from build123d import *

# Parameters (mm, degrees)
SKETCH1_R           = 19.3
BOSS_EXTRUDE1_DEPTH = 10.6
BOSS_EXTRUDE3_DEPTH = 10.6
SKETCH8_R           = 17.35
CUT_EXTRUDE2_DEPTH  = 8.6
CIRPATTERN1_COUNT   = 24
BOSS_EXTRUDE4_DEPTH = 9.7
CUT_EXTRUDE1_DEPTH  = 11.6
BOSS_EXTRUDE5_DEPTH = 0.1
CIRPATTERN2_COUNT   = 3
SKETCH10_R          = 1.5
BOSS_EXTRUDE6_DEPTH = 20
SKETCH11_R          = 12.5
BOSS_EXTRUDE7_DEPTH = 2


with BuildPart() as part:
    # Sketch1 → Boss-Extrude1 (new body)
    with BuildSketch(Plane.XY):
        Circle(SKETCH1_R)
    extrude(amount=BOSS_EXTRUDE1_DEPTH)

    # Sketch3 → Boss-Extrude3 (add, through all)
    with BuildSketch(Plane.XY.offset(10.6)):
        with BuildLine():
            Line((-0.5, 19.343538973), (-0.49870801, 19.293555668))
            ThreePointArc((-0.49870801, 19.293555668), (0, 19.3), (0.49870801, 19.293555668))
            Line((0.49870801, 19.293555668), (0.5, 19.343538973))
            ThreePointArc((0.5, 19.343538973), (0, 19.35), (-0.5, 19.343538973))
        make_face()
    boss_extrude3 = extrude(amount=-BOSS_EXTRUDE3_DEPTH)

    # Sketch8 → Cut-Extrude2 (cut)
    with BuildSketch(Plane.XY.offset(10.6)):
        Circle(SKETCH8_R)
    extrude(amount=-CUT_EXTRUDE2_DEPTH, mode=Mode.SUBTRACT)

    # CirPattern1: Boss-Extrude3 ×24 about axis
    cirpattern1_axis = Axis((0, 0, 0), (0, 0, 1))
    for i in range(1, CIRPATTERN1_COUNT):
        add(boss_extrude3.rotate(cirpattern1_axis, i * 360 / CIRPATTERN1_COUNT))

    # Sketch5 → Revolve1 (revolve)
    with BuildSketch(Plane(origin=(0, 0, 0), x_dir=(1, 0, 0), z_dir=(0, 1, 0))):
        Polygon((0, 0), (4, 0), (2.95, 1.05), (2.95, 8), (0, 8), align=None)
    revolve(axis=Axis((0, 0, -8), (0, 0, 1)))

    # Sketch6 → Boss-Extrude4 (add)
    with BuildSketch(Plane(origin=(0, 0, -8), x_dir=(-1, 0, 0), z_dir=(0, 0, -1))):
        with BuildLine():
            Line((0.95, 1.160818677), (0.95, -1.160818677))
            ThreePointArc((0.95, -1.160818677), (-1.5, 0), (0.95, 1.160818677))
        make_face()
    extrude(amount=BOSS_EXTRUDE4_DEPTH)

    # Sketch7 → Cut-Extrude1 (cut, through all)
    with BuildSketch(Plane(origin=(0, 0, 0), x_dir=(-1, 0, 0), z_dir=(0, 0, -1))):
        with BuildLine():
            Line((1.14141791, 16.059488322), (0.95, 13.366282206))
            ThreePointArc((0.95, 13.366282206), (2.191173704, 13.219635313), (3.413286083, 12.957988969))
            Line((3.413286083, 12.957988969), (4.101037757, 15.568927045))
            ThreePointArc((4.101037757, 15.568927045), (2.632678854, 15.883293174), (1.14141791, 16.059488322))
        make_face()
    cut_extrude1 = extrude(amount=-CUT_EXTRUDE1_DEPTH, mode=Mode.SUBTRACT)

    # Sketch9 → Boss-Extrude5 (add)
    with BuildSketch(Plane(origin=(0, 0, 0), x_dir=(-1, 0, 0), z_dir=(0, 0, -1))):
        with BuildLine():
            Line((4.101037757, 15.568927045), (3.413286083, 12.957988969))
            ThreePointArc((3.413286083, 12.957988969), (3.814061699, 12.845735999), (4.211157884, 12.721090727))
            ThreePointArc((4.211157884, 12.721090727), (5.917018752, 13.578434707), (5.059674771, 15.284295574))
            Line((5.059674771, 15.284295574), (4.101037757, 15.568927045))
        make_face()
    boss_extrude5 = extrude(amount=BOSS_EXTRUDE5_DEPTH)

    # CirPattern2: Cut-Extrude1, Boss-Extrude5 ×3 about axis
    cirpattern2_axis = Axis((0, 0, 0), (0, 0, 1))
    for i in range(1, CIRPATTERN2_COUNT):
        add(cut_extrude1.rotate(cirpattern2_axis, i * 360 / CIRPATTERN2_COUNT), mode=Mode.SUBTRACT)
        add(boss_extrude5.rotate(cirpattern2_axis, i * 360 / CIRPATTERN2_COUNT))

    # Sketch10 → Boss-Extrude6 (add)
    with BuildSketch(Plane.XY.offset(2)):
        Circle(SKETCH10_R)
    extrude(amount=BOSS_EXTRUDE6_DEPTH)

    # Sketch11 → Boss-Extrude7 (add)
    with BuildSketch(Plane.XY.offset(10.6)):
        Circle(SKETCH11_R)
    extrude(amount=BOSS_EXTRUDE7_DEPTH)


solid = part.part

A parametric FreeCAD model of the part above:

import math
import FreeCAD as App
import Part
import Sketcher
from FreeCAD import Vector
Q = App.Units.Quantity

doc = App.newDocument("Part")
body = doc.addObject("PartDesign::Body", "Body")

# Sketch on XY plane
sketch1 = body.newObject("Sketcher::SketchObject", "Sketch")
sketch1.AttachmentSupport = (doc.getObject("XY_Plane"), [""])
sketch1.MapMode = "FlatFace"
sketch1.addGeometry(Part.Circle(Vector(0, 0, 0), Vector(0, 0, 1), 19.3), False)
sketch1.addConstraint(Sketcher.Constraint("Coincident", 0, 3, -1, 1))
sketch1.addConstraint(Sketcher.Constraint("Diameter", 0, 38.6))
pad1 = body.newObject("PartDesign::Pad", "Pad")
pad1.Profile = sketch1
pad1.Length = 10.6

# Sketch on XY plane
sketch2 = body.newObject("Sketcher::SketchObject", "Sketch001")
sketch2.AttachmentSupport = (doc.getObject("XY_Plane"), [""])
sketch2.MapMode = "FlatFace"
sketch2.AttachmentOffset = App.Placement(Vector(0, 0, 10.6), App.Rotation())
sketch2.addGeometry(Part.LineSegment(Vector(-0.5, 19.343539, 0), Vector(-0.498708, 19.293556, 0)), False)
sketch2.addGeometry(Part.ArcOfCircle(Part.Circle(Vector(0, 0.000001, 0), Vector(0, 0, 1), 19.299999), math.radians(88.519324), math.radians(91.480676)), False)
sketch2.addGeometry(Part.LineSegment(Vector(0.498708, 19.293556, 0), Vector(0.5, 19.343539, 0)), False)
sketch2.addGeometry(Part.ArcOfCircle(Part.Circle(Vector(0, 0, 0), Vector(0, 0, 1), 19.35), math.radians(88.519324), math.radians(91.480676)), False)
sketch2.addConstraint(Sketcher.Constraint("Coincident", 0, 2, 1, 2))
sketch2.addConstraint(Sketcher.Constraint("Coincident", 1, 1, 2, 1))
sketch2.addConstraint(Sketcher.Constraint("Coincident", 2, 2, 3, 1))
sketch2.addConstraint(Sketcher.Constraint("Coincident", 3, 2, 0, 1))
sketch2.addConstraint(Sketcher.Constraint("Coincident", 1, 3, -1, 1))
sketch2.addConstraint(Sketcher.Constraint("Coincident", 3, 3, -1, 1))
sketch2.addConstraint(Sketcher.Constraint("Horizontal", 0, 2, 1, 1))
sketch2.addConstraint(Sketcher.Constraint("Horizontal", 2, 2, 3, 2))
sketch2.addConstraint(Sketcher.Constraint("Radius", 1, 19.299999))
sketch2.addConstraint(Sketcher.Constraint("Radius", 3, 19.35))
sketch2.addConstraint(Sketcher.Constraint("DistanceX", 3, 2, 2, 2, 1.0))
sketch2.addConstraint(Sketcher.Constraint("DistanceX", 0, 2, -1, 1, 0.498708))
pad2 = body.newObject("PartDesign::Pad", "Pad001")
pad2.Profile = sketch2
pad2.Length = 10.6
pad2.Reversed = True

# Sketch on XY plane
sketch3 = body.newObject("Sketcher::SketchObject", "Sketch002")
sketch3.AttachmentSupport = (doc.getObject("XY_Plane"), [""])
sketch3.MapMode = "FlatFace"
sketch3.AttachmentOffset = App.Placement(Vector(0, 0, 10.6), App.Rotation())
sketch3.addGeometry(Part.Circle(Vector(0, 0, 0), Vector(0, 0, 1), 17.35), False)
sketch3.addConstraint(Sketcher.Constraint("Coincident", 0, 3, -1, 1))
sketch3.addConstraint(Sketcher.Constraint("Diameter", 0, 34.7))
pocket1 = body.newObject("PartDesign::Pocket", "Pocket")
pocket1.Profile = sketch3
pocket1.Length = 8.6
doc.recompute()

polarpattern = body.newObject("PartDesign::PolarPattern", "PolarPattern")
polarpattern.Originals = [pad2]
polarpattern.Axis = (doc.getObject("Z_Axis"), [""])
polarpattern.Angle = 360
polarpattern.Occurrences = 24
body.Tip = polarpattern

# Sketch on XZ plane
sketch4 = body.newObject("Sketcher::SketchObject", "Sketch003")
sketch4.AttachmentSupport = (doc.getObject("XZ_Plane"), [""])
sketch4.MapMode = "FlatFace"
sketch4.addGeometry(Part.LineSegment(Vector(0, 0, 0), Vector(4, 0, 0)), False)
sketch4.addGeometry(Part.LineSegment(Vector(4, 0, 0), Vector(2.95, -1.05, 0)), False)
sketch4.addGeometry(Part.LineSegment(Vector(2.95, -1.05, 0), Vector(2.95, -8, 0)), False)
sketch4.addGeometry(Part.LineSegment(Vector(2.95, -8, 0), Vector(0, -8, 0)), False)
sketch4.addGeometry(Part.LineSegment(Vector(0, -8, 0), Vector(0, 0, 0)), False)
sketch4.addConstraint(Sketcher.Constraint("Coincident", 0, 2, 1, 1))
sketch4.addConstraint(Sketcher.Constraint("Coincident", 1, 2, 2, 1))
sketch4.addConstraint(Sketcher.Constraint("Coincident", 2, 2, 3, 1))
sketch4.addConstraint(Sketcher.Constraint("Coincident", 3, 2, 4, 1))
sketch4.addConstraint(Sketcher.Constraint("Coincident", 4, 2, 0, 1))
sketch4.addConstraint(Sketcher.Constraint("Horizontal", 0))
sketch4.addConstraint(Sketcher.Constraint("Vertical", 2))
sketch4.addConstraint(Sketcher.Constraint("Horizontal", 3))
sketch4.addConstraint(Sketcher.Constraint("Vertical", 4))
sketch4.addConstraint(Sketcher.Constraint("Coincident", 4, 2, -1, 1))
sketch4.addConstraint(Sketcher.Constraint("DistanceX", 0, 1, 0, 2, 4.0))
sketch4.addConstraint(Sketcher.Constraint("DistanceY", 4, 1, 4, 2, 8.0))
sketch4.addConstraint(Sketcher.Constraint("Angle", 1, Q("-135 deg")))
sketch4.addConstraint(Sketcher.Constraint("DistanceX", 3, 2, 3, 1, 2.95))
revolution = body.newObject("PartDesign::Revolution", "Revolution")
revolution.Profile = sketch4
revolution.ReferenceAxis = (sketch4, ["V_Axis"])
revolution.Angle = 360

# Sketch on XY plane
sketch5 = body.newObject("Sketcher::SketchObject", "Sketch004")
sketch5.AttachmentSupport = (doc.getObject("XY_Plane"), [""])
sketch5.MapMode = "FlatFace"
sketch5.AttachmentOffset = App.Placement(Vector(0, 0, -8), App.Rotation())
sketch5.addGeometry(Part.LineSegment(Vector(-0.95, -1.160819, 0), Vector(-0.95, 1.160819, 0)), False)
sketch5.addGeometry(Part.ArcOfCircle(Part.Circle(Vector(0, 0, 0), Vector(0, 0, 1), 1.5), math.radians(-129.29648), math.radians(129.29648)), False)
sketch5.addConstraint(Sketcher.Constraint("Coincident", 0, 1, 1, 1))
sketch5.addConstraint(Sketcher.Constraint("Coincident", 1, 2, 0, 2))
sketch5.addConstraint(Sketcher.Constraint("Vertical", 0))
sketch5.addConstraint(Sketcher.Constraint("Coincident", 1, 3, -1, 1))
sketch5.addConstraint(Sketcher.Constraint("Radius", 1, 1.5))
sketch5.addConstraint(Sketcher.Constraint("DistanceX", 0, 1, -1, 1, 0.95))
pad3 = body.newObject("PartDesign::Pad", "Pad002")
pad3.Profile = sketch5
pad3.Length = 9.7
pad3.Reversed = True

# Sketch on XY plane
sketch6 = body.newObject("Sketcher::SketchObject", "Sketch005")
sketch6.AttachmentSupport = (doc.getObject("XY_Plane"), [""])
sketch6.MapMode = "FlatFace"
sketch6.addGeometry(Part.LineSegment(Vector(-1.141418, 16.059488, 0), Vector(-0.95, 13.366282, 0)), False)
sketch6.addGeometry(Part.ArcOfCircle(Part.Circle(Vector(0, 0, 0), Vector(0, 0, 1), 13.4), math.radians(94.065425), math.radians(104.757163)), False)
sketch6.addGeometry(Part.LineSegment(Vector(-3.413286, 12.957989, 0), Vector(-4.101038, 15.568927, 0)), False)
sketch6.addGeometry(Part.ArcOfCircle(Part.Circle(Vector(0, 0, 0), Vector(0, 0, 1), 16.1), math.radians(94.065425), math.radians(104.757163)), False)
sketch6.addConstraint(Sketcher.Constraint("Coincident", 0, 2, 1, 1))
sketch6.addConstraint(Sketcher.Constraint("Coincident", 1, 2, 2, 1))
sketch6.addConstraint(Sketcher.Constraint("Coincident", 2, 2, 3, 2))
sketch6.addConstraint(Sketcher.Constraint("Coincident", 3, 1, 0, 1))
sketch6.addConstraint(Sketcher.Constraint("Coincident", 1, 3, -1, 1))
sketch6.addConstraint(Sketcher.Constraint("Coincident", 3, 3, -1, 1))
sketch6.addConstraint(Sketcher.Constraint("Radius", 1, 13.4))
sketch6.addConstraint(Sketcher.Constraint("Radius", 3, 16.1))
sketch6.addConstraint(Sketcher.Constraint("DistanceX", 0, 2, -1, 1, 0.95))
sketch6.addConstraint(Sketcher.Constraint("DistanceY", 1, 2, 3, 1, 3.101499))
sketch6.addConstraint(Sketcher.Constraint("DistanceY", -1, 1, 1, 2, 12.957989))
sketch6.addConstraint(Sketcher.Constraint("DistanceX", 2, 2, 1, 2, 0.687752))
pocket2 = body.newObject("PartDesign::Pocket", "Pocket001")
pocket2.Profile = sketch6
pocket2.Type = "ThroughAll"
pocket2.Reversed = True

# Sketch on XY plane
sketch7 = body.newObject("Sketcher::SketchObject", "Sketch006")
sketch7.AttachmentSupport = (doc.getObject("XY_Plane"), [""])
sketch7.MapMode = "FlatFace"
sketch7.addGeometry(Part.LineSegment(Vector(-4.101038, 15.568927, 0), Vector(-3.413286, 12.957989, 0)), False)
sketch7.addGeometry(Part.ArcOfCircle(Part.Circle(Vector(0, -0.000001, 0), Vector(0, 0, 1), 13.400001), math.radians(104.757163), math.radians(108.316479)), False)
sketch7.addGeometry(Part.ArcOfCircle(Part.Circle(Vector(-4.635416, 14.002693, 0), Vector(0, 0, 1), 1.35), math.radians(108.316479), math.radians(288.316479)), False)
sketch7.addGeometry(Part.LineSegment(Vector(-5.059675, 15.284296, 0), Vector(-4.101038, 15.568927, 0)), False)
sketch7.addConstraint(Sketcher.Constraint("Coincident", 0, 2, 1, 1))
sketch7.addConstraint(Sketcher.Constraint("Tangent", 1, 2, 2, 2))
sketch7.addConstraint(Sketcher.Constraint("Coincident", 2, 1, 3, 1))
sketch7.addConstraint(Sketcher.Constraint("Coincident", 3, 2, 0, 1))
sketch7.addConstraint(Sketcher.Constraint("Coincident", 1, 3, -1, 1))
sketch7.addConstraint(Sketcher.Constraint("Radius", 1, 13.400001))
sketch7.addConstraint(Sketcher.Constraint("Radius", 2, 1.35))
sketch7.addConstraint(Sketcher.Constraint("Distance", 3, 1.0))
sketch7.addConstraint(Sketcher.Constraint("Distance", 0, 2.7))
sketch7.addConstraint(Sketcher.Constraint("DistanceY", 1, 2, 0, 2, 0.236898))
sketch7.addConstraint(Sketcher.Constraint("DistanceY", -1, 1, 0, 2, 12.957989))
sketch7.addConstraint(Sketcher.Constraint("DistanceX", 2, 1, 2, 3, 0.424258))
pad4 = body.newObject("PartDesign::Pad", "Pad003")
pad4.Profile = sketch7
pad4.Length = 0.1
pad4.Reversed = True
doc.recompute()

polarpattern2 = body.newObject("PartDesign::PolarPattern", "PolarPattern001")
polarpattern2.Originals = [pocket2, pad4]
polarpattern2.Axis = (doc.getObject("Z_Axis"), [""])
polarpattern2.Angle = 360
polarpattern2.Occurrences = 3
body.Tip = polarpattern2

# Sketch on XY plane
sketch8 = body.newObject("Sketcher::SketchObject", "Sketch007")
sketch8.AttachmentSupport = (doc.getObject("XY_Plane"), [""])
sketch8.MapMode = "FlatFace"
sketch8.AttachmentOffset = App.Placement(Vector(0, 0, 2), App.Rotation())
sketch8.addGeometry(Part.Circle(Vector(0, 0, 0), Vector(0, 0, 1), 1.5), False)
sketch8.addConstraint(Sketcher.Constraint("Coincident", 0, 3, -1, 1))
sketch8.addConstraint(Sketcher.Constraint("Diameter", 0, 3.0))
pad5 = body.newObject("PartDesign::Pad", "Pad004")
pad5.Profile = sketch8
pad5.Length = 20

# Sketch on XY plane
sketch9 = body.newObject("Sketcher::SketchObject", "Sketch008")
sketch9.AttachmentSupport = (doc.getObject("XY_Plane"), [""])
sketch9.MapMode = "FlatFace"
sketch9.AttachmentOffset = App.Placement(Vector(0, 0, 10.6), App.Rotation())
sketch9.addGeometry(Part.Circle(Vector(0, 0, 0), Vector(0, 0, 1), 12.5), False)
sketch9.addConstraint(Sketcher.Constraint("Coincident", 0, 3, -1, 1))
sketch9.addConstraint(Sketcher.Constraint("Diameter", 0, 25.0))
pad6 = body.newObject("PartDesign::Pad", "Pad005")
pad6.Profile = sketch9
pad6.Length = 2

doc.recompute()
